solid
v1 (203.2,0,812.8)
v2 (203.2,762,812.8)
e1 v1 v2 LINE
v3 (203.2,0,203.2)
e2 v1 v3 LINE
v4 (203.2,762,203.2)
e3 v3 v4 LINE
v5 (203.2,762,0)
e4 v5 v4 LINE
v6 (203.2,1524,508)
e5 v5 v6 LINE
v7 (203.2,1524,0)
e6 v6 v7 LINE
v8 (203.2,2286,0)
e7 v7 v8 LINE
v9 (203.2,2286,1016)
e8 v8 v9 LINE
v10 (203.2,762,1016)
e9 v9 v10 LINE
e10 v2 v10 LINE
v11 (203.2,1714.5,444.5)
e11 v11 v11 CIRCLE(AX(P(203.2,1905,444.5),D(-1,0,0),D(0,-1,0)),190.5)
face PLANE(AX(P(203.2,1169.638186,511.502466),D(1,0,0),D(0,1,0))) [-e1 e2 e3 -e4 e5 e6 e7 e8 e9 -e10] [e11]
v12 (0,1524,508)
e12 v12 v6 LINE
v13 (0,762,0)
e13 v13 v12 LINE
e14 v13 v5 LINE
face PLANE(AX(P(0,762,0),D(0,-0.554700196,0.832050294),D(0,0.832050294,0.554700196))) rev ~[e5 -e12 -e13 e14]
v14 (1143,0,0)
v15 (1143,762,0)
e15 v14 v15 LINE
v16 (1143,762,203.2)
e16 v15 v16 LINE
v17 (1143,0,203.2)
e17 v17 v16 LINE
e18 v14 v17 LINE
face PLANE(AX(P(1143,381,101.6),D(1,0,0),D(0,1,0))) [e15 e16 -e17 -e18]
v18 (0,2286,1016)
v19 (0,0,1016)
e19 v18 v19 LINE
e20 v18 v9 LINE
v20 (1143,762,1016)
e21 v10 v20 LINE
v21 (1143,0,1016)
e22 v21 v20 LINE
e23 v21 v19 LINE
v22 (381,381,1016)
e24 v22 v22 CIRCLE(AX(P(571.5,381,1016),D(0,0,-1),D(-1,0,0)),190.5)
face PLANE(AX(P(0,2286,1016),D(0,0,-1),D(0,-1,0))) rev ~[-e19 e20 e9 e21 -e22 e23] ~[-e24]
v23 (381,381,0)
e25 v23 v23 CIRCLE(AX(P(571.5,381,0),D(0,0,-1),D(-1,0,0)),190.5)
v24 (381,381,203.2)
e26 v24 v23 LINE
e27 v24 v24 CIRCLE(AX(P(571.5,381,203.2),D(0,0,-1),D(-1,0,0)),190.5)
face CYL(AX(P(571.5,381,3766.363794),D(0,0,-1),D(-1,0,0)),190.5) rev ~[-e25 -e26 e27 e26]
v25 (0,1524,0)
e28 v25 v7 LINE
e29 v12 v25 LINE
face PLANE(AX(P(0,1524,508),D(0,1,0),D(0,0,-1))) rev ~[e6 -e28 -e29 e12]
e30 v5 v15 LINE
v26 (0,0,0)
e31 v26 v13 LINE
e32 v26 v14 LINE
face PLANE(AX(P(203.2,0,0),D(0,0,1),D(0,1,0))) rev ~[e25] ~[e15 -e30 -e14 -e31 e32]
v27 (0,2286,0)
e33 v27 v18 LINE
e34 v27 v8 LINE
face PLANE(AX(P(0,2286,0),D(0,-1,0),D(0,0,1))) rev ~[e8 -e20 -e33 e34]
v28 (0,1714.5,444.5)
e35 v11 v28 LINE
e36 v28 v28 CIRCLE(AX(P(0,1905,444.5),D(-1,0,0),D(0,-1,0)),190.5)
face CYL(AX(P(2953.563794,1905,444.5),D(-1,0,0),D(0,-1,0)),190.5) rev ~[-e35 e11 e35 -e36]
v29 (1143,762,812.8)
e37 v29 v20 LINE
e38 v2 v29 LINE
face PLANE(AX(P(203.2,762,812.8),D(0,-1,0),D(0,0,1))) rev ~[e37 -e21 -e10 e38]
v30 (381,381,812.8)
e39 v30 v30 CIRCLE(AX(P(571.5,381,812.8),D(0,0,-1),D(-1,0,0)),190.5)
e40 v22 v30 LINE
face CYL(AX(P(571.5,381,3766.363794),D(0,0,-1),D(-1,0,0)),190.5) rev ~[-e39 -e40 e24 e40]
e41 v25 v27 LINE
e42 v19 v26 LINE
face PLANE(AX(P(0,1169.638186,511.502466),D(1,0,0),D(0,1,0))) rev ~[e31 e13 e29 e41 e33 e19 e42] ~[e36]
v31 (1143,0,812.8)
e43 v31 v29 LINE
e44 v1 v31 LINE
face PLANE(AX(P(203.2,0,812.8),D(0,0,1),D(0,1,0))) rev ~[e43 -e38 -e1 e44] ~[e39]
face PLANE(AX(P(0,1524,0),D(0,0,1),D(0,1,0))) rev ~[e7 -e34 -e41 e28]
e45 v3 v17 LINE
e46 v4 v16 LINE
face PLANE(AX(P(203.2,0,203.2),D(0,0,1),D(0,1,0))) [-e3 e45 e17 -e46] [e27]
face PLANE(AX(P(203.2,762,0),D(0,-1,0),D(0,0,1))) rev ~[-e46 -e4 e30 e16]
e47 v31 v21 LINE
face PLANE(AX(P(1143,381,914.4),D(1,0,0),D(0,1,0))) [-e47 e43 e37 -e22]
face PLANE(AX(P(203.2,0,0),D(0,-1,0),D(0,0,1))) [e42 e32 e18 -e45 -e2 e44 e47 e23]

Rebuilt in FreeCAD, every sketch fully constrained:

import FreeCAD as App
import Part
import Sketcher

V = App.Vector
Q = App.Units.Quantity

doc = App.newDocument("Part")
body = doc.addObject("PartDesign::Body", "Body")

# Sketch on YZ plane
sketch1 = body.newObject("Sketcher::SketchObject", "Sketch")
sketch1.AttachmentSupport = (doc.getObject("YZ_Plane"), [""])
sketch1.MapMode = "FlatFace"
sketch1.addGeometry([
    Part.LineSegment(V(0, 1016, 0), V(0, 0, 0)),  # 0
    Part.LineSegment(V(0, 0, 0), V(762, 0, 0)),  # 1
    Part.LineSegment(V(762, 0, 0), V(1524, 508, 0)),  # 2
    Part.LineSegment(V(1524, 508, 0), V(1524, 0, 0)),  # 3
    Part.LineSegment(V(1524, 0, 0), V(2286, 0, 0)),  # 4
    Part.LineSegment(V(2286, 0, 0), V(2286, 1016, 0)),  # 5
    Part.LineSegment(V(2286, 1016, 0), V(0, 1016, 0)),  # 6
], False)
sketch1.addConstraint([
    Sketcher.Constraint("Coincident", 0, 2, 1, 1),
    Sketcher.Constraint("Coincident", 1, 2, 2, 1),
    Sketcher.Constraint("Coincident", 2, 2, 3, 1),
    Sketcher.Constraint("Coincident", 3, 2, 4, 1),
    Sketcher.Constraint("Coincident", 4, 2, 5, 1),
    Sketcher.Constraint("Coincident", 5, 2, 6, 1),
    Sketcher.Constraint("Coincident", 6, 2, 0, 1),
    Sketcher.Constraint("Vertical", 0),
    Sketcher.Constraint("Horizontal", 1),
    Sketcher.Constraint("Vertical", 3),
    Sketcher.Constraint("Horizontal", 4),
    Sketcher.Constraint("Vertical", 5),
    Sketcher.Constraint("Horizontal", 6),
    Sketcher.Constraint("Coincident", 0, 2, -1, 1),
    Sketcher.Constraint("PointOnObject", 3, 2, -1),
    Sketcher.Constraint("Equal", 1, 4),
    Sketcher.Constraint("DistanceX", 1, 1, 1, 2, Q("30 in")),
    Sketcher.Constraint("DistanceX", 6, 2, 6, 1, Q("90 in")),
    Sketcher.Constraint("DistanceY", 0, 2, 0, 1, Q("40 in")),
    Sketcher.Constraint("DistanceY", 3, 2, 3, 1, Q("20 in")),
])
pad1 = body.newObject("PartDesign::Pad", "Pad")
pad1.Profile = sketch1
pad1.Length = Q("8 in")

# Sketch on YZ plane
sketch2 = body.newObject("Sketcher::SketchObject", "Sketch001")
sketch2.AttachmentSupport = (doc.getObject("YZ_Plane"), [""])
sketch2.MapMode = "FlatFace"
sketch2.AttachmentOffset = App.Placement(V(0, 0, 8 * 25.4), App.Rotation())
sketch2.addGeometry([
    Part.LineSegment(V(0, 203.2, 0), V(0, 0, 0)),  # 0
    Part.LineSegment(V(0, 0, 0), V(762, 0, 0)),  # 1
    Part.LineSegment(V(762, 0, 0), V(762, 203.2, 0)),  # 2
    Part.LineSegment(V(762, 203.2, 0), V(0, 203.2, 0)),  # 3
    Part.LineSegment(V(0, 1016, 0), V(0, 812.8, 0)),  # 4
    Part.LineSegment(V(0, 812.8, 0), V(762, 812.8, 0)),  # 5
    Part.LineSegment(V(762, 812.8, 0), V(762, 1016, 0)),  # 6
    Part.LineSegment(V(762, 1016, 0), V(0, 1016, 0)),  # 7
], False)
sketch2.addConstraint([
    Sketcher.Constraint("Coincident", 0, 2, 1, 1),
    Sketcher.Constraint("Coincident", 1, 2, 2, 1),
    Sketcher.Constraint("Coincident", 2, 2, 3, 1),
    Sketcher.Constraint("Coincident", 3, 2, 0, 1),
    Sketcher.Constraint("Coincident", 4, 2, 5, 1),
    Sketcher.Constraint("Coincident", 5, 2, 6, 1),
    Sketcher.Constraint("Coincident", 6, 2, 7, 1),
    Sketcher.Constraint("Coincident", 7, 2, 4, 1),
    Sketcher.Constraint("Vertical", 0),
    Sketcher.Constraint("Horizontal", 1),
    Sketcher.Constraint("Vertical", 2),
    Sketcher.Constraint("Horizontal", 3),
    Sketcher.Constraint("Vertical", 4),
    Sketcher.Constraint("Horizontal", 5),
    Sketcher.Constraint("Vertical", 6),
    Sketcher.Constraint("Horizontal", 7),
    Sketcher.Constraint("Coincident", 0, 2, -1, 1),
    Sketcher.Constraint("PointOnObject", 4, 2, -2),
    Sketcher.Constraint("Vertical", 2, 2, 5, 2),
    Sketcher.Constraint("Equal", 2, 4),
    Sketcher.Constraint("DistanceX", 1, 1, 1, 2, Q("30 in")),
    Sketcher.Constraint("DistanceY", 0, 2, 0, 1, Q("8 in")),
    Sketcher.Constraint("DistanceY", -1, 1, 4, 2, Q("32 in")),
])
pad2 = body.newObject("PartDesign::Pad", "Pad001")
pad2.Profile = sketch2
pad2.Length = Q("37 in")

# Sketch on XY plane
sketch3 = body.newObject("Sketcher::SketchObject", "Sketch002")
sketch3.AttachmentSupport = (doc.getObject("XY_Plane"), [""])
sketch3.MapMode = "FlatFace"
sketch3.AttachmentOffset = App.Placement(V(0, 0, 40 * 25.4), App.Rotation())
sketch3.addGeometry(Part.Circle(V(571.5, 381, 0), V(0, 0, 1), 190.5), False)
sketch3.addConstraint([
    Sketcher.Constraint("Diameter", 0, Q("15 in")),
    Sketcher.Constraint("DistanceY", -1, 1, 0, 3, Q("15 in")),
    Sketcher.Constraint("DistanceX", -1, 1, 0, 3, Q("22.5 in")),
])
doc.recompute()
hole = body.newObject("PartDesign::Hole", "Hole")
hole.Profile = sketch3
hole.ThreadType = "None"
hole.Diameter = Q("15 in")
hole.DepthType = "ThroughAll"

# Sketch on YZ plane
sketch4 = body.newObject("Sketcher::SketchObject", "Sketch003")
sketch4.AttachmentSupport = (doc.getObject("YZ_Plane"), [""])
sketch4.MapMode = "FlatFace"
sketch4.AttachmentOffset = App.Placement(V(0, 0, 8 * 25.4), App.Rotation())
sketch4.addGeometry(Part.Circle(V(1905, 444.5, 0), V(0, 0, 1), 190.5), False)
sketch4.addConstraint([
    Sketcher.Constraint("Diameter", 0, Q("15 in")),
    Sketcher.Constraint("DistanceX", -1, 1, 0, 3, Q("75 in")),
    Sketcher.Constraint("DistanceY", -1, 1, 0, 3, Q("17.5 in")),
])
doc.recompute()
hole2 = body.newObject("PartDesign::Hole", "Hole001")
hole2.Profile = sketch4
hole2.ThreadType = "None"
hole2.Diameter = Q("15 in")
hole2.DepthType = "ThroughAll"

doc.recompute()
